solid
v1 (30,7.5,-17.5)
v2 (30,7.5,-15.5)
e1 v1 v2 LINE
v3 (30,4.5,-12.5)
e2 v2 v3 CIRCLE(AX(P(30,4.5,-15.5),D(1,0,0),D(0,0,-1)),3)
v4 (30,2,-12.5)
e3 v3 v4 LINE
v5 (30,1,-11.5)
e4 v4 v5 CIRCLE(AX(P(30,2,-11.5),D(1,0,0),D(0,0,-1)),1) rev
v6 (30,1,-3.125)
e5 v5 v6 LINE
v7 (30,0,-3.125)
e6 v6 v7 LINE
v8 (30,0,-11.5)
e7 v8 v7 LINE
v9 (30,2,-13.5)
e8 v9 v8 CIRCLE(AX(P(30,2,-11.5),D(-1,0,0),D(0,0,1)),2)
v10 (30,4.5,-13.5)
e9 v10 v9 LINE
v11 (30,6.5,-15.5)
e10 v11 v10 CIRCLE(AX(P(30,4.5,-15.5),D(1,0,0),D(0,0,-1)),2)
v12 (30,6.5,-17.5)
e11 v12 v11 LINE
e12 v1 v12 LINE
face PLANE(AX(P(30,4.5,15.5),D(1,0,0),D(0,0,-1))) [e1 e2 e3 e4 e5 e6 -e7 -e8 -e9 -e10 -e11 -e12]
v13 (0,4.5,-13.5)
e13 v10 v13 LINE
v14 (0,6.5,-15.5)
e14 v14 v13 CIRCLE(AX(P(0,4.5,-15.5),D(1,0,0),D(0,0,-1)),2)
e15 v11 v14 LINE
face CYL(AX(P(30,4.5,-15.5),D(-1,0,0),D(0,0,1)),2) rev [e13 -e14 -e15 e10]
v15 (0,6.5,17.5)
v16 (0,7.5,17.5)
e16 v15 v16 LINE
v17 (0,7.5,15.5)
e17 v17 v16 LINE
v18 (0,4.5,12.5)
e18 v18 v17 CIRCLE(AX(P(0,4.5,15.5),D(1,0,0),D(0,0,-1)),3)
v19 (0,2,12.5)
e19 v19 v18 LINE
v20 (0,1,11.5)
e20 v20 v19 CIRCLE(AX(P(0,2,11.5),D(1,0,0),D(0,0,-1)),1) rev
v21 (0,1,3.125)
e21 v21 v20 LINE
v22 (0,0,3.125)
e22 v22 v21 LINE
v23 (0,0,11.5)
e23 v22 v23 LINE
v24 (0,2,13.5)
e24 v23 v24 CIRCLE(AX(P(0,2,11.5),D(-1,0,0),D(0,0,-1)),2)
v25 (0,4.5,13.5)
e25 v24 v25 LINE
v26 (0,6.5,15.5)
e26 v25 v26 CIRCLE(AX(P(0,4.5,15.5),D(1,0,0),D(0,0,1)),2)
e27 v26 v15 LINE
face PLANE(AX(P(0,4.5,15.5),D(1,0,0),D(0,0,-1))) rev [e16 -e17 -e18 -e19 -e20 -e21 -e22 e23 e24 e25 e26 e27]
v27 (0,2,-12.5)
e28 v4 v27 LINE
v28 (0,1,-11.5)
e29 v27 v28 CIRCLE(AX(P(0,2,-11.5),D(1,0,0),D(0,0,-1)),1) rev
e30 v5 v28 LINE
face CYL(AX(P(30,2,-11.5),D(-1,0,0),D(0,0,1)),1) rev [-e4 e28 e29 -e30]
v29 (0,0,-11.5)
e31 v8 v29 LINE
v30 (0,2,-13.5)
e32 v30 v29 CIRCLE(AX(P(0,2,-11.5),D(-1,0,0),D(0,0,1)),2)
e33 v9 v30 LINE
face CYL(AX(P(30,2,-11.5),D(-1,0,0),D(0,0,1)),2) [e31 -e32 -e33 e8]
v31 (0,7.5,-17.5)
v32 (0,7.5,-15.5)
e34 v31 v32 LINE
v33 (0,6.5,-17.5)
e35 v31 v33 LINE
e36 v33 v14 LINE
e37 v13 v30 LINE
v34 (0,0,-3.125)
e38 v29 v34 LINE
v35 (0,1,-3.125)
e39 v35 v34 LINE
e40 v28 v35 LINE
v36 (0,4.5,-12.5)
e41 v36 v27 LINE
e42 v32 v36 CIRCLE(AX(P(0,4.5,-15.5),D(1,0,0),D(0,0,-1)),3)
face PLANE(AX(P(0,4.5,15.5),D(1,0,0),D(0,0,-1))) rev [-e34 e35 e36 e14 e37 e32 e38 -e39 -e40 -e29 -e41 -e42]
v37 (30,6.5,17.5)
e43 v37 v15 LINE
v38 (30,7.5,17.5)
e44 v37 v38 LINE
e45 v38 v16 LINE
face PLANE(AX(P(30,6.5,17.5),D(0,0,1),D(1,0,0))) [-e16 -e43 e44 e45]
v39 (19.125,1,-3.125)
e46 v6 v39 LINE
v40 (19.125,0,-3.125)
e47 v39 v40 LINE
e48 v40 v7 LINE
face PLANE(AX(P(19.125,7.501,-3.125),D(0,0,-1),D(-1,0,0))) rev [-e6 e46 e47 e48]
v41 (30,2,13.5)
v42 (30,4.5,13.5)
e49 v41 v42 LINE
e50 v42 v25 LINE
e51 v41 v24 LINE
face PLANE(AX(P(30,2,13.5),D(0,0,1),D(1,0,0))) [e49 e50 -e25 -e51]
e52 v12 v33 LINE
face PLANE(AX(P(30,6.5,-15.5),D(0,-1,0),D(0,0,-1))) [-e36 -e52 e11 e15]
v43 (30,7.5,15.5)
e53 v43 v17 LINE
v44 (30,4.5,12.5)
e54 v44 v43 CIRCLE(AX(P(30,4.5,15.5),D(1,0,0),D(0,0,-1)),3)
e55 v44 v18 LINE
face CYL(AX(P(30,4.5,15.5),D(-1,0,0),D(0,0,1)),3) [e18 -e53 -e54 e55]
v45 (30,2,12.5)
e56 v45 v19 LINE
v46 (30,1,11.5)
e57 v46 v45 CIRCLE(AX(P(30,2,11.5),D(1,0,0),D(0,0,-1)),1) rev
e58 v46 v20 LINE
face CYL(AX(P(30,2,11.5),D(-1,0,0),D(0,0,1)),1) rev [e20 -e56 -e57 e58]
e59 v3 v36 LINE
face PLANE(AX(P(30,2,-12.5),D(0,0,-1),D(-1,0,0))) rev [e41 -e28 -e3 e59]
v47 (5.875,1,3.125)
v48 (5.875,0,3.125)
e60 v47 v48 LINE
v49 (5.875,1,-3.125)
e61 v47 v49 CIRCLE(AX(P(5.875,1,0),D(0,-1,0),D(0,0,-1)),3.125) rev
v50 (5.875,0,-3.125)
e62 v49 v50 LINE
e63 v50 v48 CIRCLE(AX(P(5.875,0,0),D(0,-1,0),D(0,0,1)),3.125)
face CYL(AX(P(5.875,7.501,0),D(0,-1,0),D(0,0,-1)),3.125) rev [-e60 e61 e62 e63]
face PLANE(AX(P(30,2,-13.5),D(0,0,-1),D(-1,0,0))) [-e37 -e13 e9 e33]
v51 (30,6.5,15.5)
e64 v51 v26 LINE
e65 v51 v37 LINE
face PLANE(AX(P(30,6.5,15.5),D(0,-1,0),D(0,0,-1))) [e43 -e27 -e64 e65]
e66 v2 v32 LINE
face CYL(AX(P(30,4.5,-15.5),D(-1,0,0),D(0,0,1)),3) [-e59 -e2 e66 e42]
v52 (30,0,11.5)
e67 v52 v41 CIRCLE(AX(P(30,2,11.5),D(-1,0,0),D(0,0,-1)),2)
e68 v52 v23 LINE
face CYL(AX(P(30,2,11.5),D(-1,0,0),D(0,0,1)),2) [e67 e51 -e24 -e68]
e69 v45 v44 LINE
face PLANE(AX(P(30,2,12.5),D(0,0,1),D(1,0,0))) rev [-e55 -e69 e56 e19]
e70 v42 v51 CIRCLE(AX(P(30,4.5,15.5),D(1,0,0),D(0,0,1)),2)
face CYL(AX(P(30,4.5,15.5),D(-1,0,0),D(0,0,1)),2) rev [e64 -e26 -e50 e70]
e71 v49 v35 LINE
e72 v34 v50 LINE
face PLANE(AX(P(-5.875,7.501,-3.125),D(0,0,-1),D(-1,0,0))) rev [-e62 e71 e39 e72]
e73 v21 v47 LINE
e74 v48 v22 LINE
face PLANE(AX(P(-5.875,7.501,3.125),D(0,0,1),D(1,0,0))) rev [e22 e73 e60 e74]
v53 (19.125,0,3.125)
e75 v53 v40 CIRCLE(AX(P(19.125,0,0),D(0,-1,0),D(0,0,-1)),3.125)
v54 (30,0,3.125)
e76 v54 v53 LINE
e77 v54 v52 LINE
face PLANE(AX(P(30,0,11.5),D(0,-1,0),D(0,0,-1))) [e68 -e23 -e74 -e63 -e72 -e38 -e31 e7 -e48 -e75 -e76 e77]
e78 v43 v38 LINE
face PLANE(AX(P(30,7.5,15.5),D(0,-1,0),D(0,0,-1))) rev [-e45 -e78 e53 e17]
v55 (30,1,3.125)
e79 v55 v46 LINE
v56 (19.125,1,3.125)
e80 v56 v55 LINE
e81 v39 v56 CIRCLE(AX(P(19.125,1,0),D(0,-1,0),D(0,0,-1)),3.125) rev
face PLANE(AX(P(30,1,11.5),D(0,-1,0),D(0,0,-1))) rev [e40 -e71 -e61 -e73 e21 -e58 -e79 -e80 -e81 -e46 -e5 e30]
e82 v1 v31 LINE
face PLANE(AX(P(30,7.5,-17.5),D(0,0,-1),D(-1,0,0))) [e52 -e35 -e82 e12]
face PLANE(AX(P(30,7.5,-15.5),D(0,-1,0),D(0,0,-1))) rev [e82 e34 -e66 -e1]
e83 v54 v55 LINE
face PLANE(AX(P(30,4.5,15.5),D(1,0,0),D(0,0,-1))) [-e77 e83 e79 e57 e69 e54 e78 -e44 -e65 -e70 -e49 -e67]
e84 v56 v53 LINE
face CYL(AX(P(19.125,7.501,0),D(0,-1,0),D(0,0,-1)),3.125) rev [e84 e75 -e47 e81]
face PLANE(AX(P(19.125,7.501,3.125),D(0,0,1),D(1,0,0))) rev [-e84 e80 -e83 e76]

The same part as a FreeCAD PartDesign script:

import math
import FreeCAD as App
import Part
import Sketcher
Q = App.Units.Quantity

doc = App.newDocument("Part")
params = doc.addObject("Spreadsheet::Sheet", "Params")
for row, (alias, value) in enumerate([
    ("sketch1_radius", "2 mm"),
    ("sketch1_radius2", "3 mm"),
    ("sketch1_height", "2 mm"),
    ("sketch1_height2", "23 mm"),
    ("sketch1_width", "2.5 mm"),
    ("pad1_length", "30 mm"),
    ("sketch2_width", "11.75 mm"),
    ("pocket1_length", "1 mm"),
    ("linearpattern_pitch", "25 mm"),
], start=1):
    params.set(f"A{row}", alias)
    params.set(f"B{row}", "=" + value)
    params.setAlias(f"B{row}", alias)

body = doc.addObject("PartDesign::Body", "Body")

# Sketch on YZ plane
sketch1 = body.newObject("Sketcher::SketchObject", "Sketch")
sketch1.AttachmentSupport = (doc.getObject("YZ_Plane"), [""])
sketch1.MapMode = "FlatFace"
sketch1.addGeometry(Part.LineSegment(App.Vector(6.5, 17.5, 0), App.Vector(6.5, 15.5, 0)), False)
sketch1.addGeometry(Part.ArcOfCircle(Part.Circle(App.Vector(4.5, 15.5, 0), App.Vector(0, 0, 1), 2), math.radians(-90), math.radians(0)), False)
sketch1.addGeometry(Part.LineSegment(App.Vector(4.5, 13.5, 0), App.Vector(2, 13.5, 0)), False)
sketch1.addGeometry(Part.ArcOfCircle(Part.Circle(App.Vector(2, 11.5, 0), App.Vector(0, 0, 1), 2), math.radians(90), math.radians(180)), False)
sketch1.addGeometry(Part.LineSegment(App.Vector(0, 11.5, 0), App.Vector(0, -11.5, 0)), False)
sketch1.addGeometry(Part.ArcOfCircle(Part.Circle(App.Vector(2, -11.5, 0), App.Vector(0, 0, 1), 2), math.radians(-180), math.radians(-90)), False)
sketch1.addGeometry(Part.LineSegment(App.Vector(2, -13.5, 0), App.Vector(4.5, -13.5, 0)), False)
sketch1.addGeometry(Part.ArcOfCircle(Part.Circle(App.Vector(4.5, -15.5, 0), App.Vector(0, 0, 1), 2), math.radians(0), math.radians(90)), False)
sketch1.addGeometry(Part.LineSegment(App.Vector(6.5, -15.5, 0), App.Vector(6.5, -17.5, 0)), False)
sketch1.addGeometry(Part.LineSegment(App.Vector(6.5, -17.5, 0), App.Vector(7.5, -17.5, 0)), False)
sketch1.addGeometry(Part.LineSegment(App.Vector(7.5, -17.5, 0), App.Vector(7.5, -15.5, 0)), False)
sketch1.addGeometry(Part.ArcOfCircle(Part.Circle(App.Vector(4.5, -15.5, 0), App.Vector(0, 0, 1), 3), math.radians(0), math.radians(90)), False)
sketch1.addGeometry(Part.LineSegment(App.Vector(4.5, -12.5, 0), App.Vector(2, -12.5, 0)), False)
sketch1.addGeometry(Part.ArcOfCircle(Part.Circle(App.Vector(2, -11.5, 0), App.Vector(0, 0, 1), 1), math.radians(-180), math.radians(-90)), False)
sketch1.addGeometry(Part.LineSegment(App.Vector(1, -11.5, 0), App.Vector(1, 11.5, 0)), False)
sketch1.addGeometry(Part.ArcOfCircle(Part.Circle(App.Vector(2, 11.5, 0), App.Vector(0, 0, 1), 1), math.radians(90), math.radians(180)), False)
sketch1.addGeometry(Part.LineSegment(App.Vector(2, 12.5, 0), App.Vector(4.5, 12.5, 0)), False)
sketch1.addGeometry(Part.ArcOfCircle(Part.Circle(App.Vector(4.5, 15.5, 0), App.Vector(0, 0, 1), 3), math.radians(-90), math.radians(0)), False)
sketch1.addGeometry(Part.LineSegment(App.Vector(7.5, 15.5, 0), App.Vector(7.5, 17.5, 0)), False)
sketch1.addGeometry(Part.LineSegment(App.Vector(7.5, 17.5, 0), App.Vector(6.5, 17.5, 0)), False)
sketch1.addConstraint(Sketcher.Constraint("Tangent", 0, 2, 1, 2))
sketch1.addConstraint(Sketcher.Constraint("Tangent", 1, 1, 2, 1))
sketch1.addConstraint(Sketcher.Constraint("Tangent", 2, 2, 3, 1))
sketch1.addConstraint(Sketcher.Constraint("Tangent", 3, 2, 4, 1))
sketch1.addConstraint(Sketcher.Constraint("Tangent", 4, 2, 5, 1))
sketch1.addConstraint(Sketcher.Constraint("Tangent", 5, 2, 6, 1))
sketch1.addConstraint(Sketcher.Constraint("Tangent", 6, 2, 7, 2))
sketch1.addConstraint(Sketcher.Constraint("Tangent", 7, 1, 8, 1))
sketch1.addConstraint(Sketcher.Constraint("Coincident", 8, 2, 9, 1))
sketch1.addConstraint(Sketcher.Constraint("Coincident", 9, 2, 10, 1))
sketch1.addConstraint(Sketcher.Constraint("Tangent", 10, 2, 11, 1))
sketch1.addConstraint(Sketcher.Constraint("Tangent", 11, 2, 12, 1))
sketch1.addConstraint(Sketcher.Constraint("Tangent", 12, 2, 13, 2))
sketch1.addConstraint(Sketcher.Constraint("Tangent", 13, 1, 14, 1))
sketch1.addConstraint(Sketcher.Constraint("Tangent", 14, 2, 15, 2))
sketch1.addConstraint(Sketcher.Constraint("Tangent", 15, 1, 16, 1))
sketch1.addConstraint(Sketcher.Constraint("Tangent", 16, 2, 17, 1))
sketch1.addConstraint(Sketcher.Constraint("Tangent", 17, 2, 18, 1))
sketch1.addConstraint(Sketcher.Constraint("Coincident", 18, 2, 19, 1))
sketch1.addConstraint(Sketcher.Constraint("Coincident", 19, 2, 0, 1))
sketch1.addConstraint(Sketcher.Constraint("Vertical", 0))
sketch1.addConstraint(Sketcher.Constraint("Horizontal", 2))
sketch1.addConstraint(Sketcher.Constraint("Vertical", 4))
sketch1.addConstraint(Sketcher.Constraint("Horizontal", 6))
sketch1.addConstraint(Sketcher.Constraint("Vertical", 8))
sketch1.addConstraint(Sketcher.Constraint("Horizontal", 9))
sketch1.addConstraint(Sketcher.Constraint("Vertical", 10))
sketch1.addConstraint(Sketcher.Constraint("Horizontal", 12))
sketch1.addConstraint(Sketcher.Constraint("Vertical", 14))
sketch1.addConstraint(Sketcher.Constraint("Horizontal", 16))
sketch1.addConstraint(Sketcher.Constraint("Vertical", 18))
sketch1.addConstraint(Sketcher.Constraint("Horizontal", 19))
sketch1.addConstraint(Sketcher.Constraint("Coincident", 11, 3, 7, 3))
sketch1.addConstraint(Sketcher.Constraint("Coincident", 13, 3, 5, 3))
sketch1.addConstraint(Sketcher.Constraint("Coincident", 15, 3, 3, 3))
sketch1.addConstraint(Sketcher.Constraint("Coincident", 17, 3, 1, 3))
sketch1.addConstraint(Sketcher.Constraint("Equal", 1, 3))
sketch1.addConstraint(Sketcher.Constraint("Equal", 3, 5))
sketch1.addConstraint(Sketcher.Constraint("Equal", 5, 7))
sketch1.addConstraint(Sketcher.Constraint("Symmetric", 3, 2, 4, 2, -1, 1))
sketch1.addConstraint(Sketcher.Constraint("Symmetric", 9, 2, 18, 2, -1))
sketch1.addConstraint(Sketcher.Constraint("Radius", 1, Q("2 mm")))
sketch1.addConstraint(Sketcher.Constraint("Radius", 11, Q("3 mm")))
sketch1.addConstraint(Sketcher.Constraint("DistanceY", 0, 2, 0, 1, Q("2 mm")))
sketch1.addConstraint(Sketcher.Constraint("DistanceY", 4, 2, 4, 1, Q("23 mm")))
sketch1.addConstraint(Sketcher.Constraint("DistanceX", 2, 2, 2, 1, Q("2.5 mm")))
sketch1.setExpression("Constraints[41]", "Params.sketch1_radius")
sketch1.setExpression("Constraints[42]", "Params.sketch1_radius2")
sketch1.setExpression("Constraints[43]", "Params.sketch1_height")
sketch1.setExpression("Constraints[44]", "Params.sketch1_height2")
sketch1.setExpression("Constraints[45]", "Params.sketch1_width")
pad1 = body.newObject("PartDesign::Pad", "Pad")
pad1.Profile = sketch1
pad1.setExpression("Length", "Params.pad1_length")

# Sketch on XZ plane
sketch2 = body.newObject("Sketcher::SketchObject", "Sketch001")
sketch2.AttachmentSupport = (doc.getObject("XZ_Plane"), [""])
sketch2.MapMode = "FlatFace"
sketch2.addGeometry(Part.LineSegment(App.Vector(5.875, 3.125, 0), App.Vector(-5.875, 3.125, 0)), False)
sketch2.addGeometry(Part.ArcOfCircle(Part.Circle(App.Vector(-5.875, 0, 0), App.Vector(0, 0, 1), 3.125), math.radians(90), math.radians(270)), False)
sketch2.addGeometry(Part.LineSegment(App.Vector(-5.875, -3.125, 0), App.Vector(5.875, -3.125, 0)), False)
sketch2.addGeometry(Part.ArcOfCircle(Part.Circle(App.Vector(5.875, 0, 0), App.Vector(0, 0, 1), 3.125), math.radians(-90), math.radians(90)), False)
sketch2.addConstraint(Sketcher.Constraint("Tangent", 0, 2, 1, 1))
sketch2.addConstraint(Sketcher.Constraint("Tangent", 1, 2, 2, 1))
sketch2.addConstraint(Sketcher.Constraint("Tangent", 2, 2, 3, 1))
sketch2.addConstraint(Sketcher.Constraint("Tangent", 3, 2, 0, 1))
sketch2.addConstraint(Sketcher.Constraint("Horizontal", 0))
sketch2.addConstraint(Sketcher.Constraint("Horizontal", 2))
sketch2.addConstraint(Sketcher.Constraint("Symmetric", 1, 3, 3, 3, -1, 1))
sketch2.addConstraint(Sketcher.Constraint("Radius", 1, Q("3.125 mm")))
sketch2.addConstraint(Sketcher.Constraint("DistanceX", 0, 2, 0, 1, Q("11.75 mm")))
sketch2.setExpression("Constraints[8]", "Params.sketch2_width")
pocket1 = body.newObject("PartDesign::Pocket", "Pocket")
pocket1.Profile = sketch2
pocket1.setExpression("Length", "Params.pocket1_length")
doc.recompute()

linearpattern = body.newObject("PartDesign::LinearPattern", "LinearPattern")
linearpattern.Originals = [pocket1]
linearpattern.Direction = (doc.getObject("X_Axis"), [""])
linearpattern.Mode = "offset"
linearpattern.setExpression("Offset", "Params.linearpattern_pitch")
linearpattern.Occurrences = 2
body.Tip = linearpattern

doc.recompute()
